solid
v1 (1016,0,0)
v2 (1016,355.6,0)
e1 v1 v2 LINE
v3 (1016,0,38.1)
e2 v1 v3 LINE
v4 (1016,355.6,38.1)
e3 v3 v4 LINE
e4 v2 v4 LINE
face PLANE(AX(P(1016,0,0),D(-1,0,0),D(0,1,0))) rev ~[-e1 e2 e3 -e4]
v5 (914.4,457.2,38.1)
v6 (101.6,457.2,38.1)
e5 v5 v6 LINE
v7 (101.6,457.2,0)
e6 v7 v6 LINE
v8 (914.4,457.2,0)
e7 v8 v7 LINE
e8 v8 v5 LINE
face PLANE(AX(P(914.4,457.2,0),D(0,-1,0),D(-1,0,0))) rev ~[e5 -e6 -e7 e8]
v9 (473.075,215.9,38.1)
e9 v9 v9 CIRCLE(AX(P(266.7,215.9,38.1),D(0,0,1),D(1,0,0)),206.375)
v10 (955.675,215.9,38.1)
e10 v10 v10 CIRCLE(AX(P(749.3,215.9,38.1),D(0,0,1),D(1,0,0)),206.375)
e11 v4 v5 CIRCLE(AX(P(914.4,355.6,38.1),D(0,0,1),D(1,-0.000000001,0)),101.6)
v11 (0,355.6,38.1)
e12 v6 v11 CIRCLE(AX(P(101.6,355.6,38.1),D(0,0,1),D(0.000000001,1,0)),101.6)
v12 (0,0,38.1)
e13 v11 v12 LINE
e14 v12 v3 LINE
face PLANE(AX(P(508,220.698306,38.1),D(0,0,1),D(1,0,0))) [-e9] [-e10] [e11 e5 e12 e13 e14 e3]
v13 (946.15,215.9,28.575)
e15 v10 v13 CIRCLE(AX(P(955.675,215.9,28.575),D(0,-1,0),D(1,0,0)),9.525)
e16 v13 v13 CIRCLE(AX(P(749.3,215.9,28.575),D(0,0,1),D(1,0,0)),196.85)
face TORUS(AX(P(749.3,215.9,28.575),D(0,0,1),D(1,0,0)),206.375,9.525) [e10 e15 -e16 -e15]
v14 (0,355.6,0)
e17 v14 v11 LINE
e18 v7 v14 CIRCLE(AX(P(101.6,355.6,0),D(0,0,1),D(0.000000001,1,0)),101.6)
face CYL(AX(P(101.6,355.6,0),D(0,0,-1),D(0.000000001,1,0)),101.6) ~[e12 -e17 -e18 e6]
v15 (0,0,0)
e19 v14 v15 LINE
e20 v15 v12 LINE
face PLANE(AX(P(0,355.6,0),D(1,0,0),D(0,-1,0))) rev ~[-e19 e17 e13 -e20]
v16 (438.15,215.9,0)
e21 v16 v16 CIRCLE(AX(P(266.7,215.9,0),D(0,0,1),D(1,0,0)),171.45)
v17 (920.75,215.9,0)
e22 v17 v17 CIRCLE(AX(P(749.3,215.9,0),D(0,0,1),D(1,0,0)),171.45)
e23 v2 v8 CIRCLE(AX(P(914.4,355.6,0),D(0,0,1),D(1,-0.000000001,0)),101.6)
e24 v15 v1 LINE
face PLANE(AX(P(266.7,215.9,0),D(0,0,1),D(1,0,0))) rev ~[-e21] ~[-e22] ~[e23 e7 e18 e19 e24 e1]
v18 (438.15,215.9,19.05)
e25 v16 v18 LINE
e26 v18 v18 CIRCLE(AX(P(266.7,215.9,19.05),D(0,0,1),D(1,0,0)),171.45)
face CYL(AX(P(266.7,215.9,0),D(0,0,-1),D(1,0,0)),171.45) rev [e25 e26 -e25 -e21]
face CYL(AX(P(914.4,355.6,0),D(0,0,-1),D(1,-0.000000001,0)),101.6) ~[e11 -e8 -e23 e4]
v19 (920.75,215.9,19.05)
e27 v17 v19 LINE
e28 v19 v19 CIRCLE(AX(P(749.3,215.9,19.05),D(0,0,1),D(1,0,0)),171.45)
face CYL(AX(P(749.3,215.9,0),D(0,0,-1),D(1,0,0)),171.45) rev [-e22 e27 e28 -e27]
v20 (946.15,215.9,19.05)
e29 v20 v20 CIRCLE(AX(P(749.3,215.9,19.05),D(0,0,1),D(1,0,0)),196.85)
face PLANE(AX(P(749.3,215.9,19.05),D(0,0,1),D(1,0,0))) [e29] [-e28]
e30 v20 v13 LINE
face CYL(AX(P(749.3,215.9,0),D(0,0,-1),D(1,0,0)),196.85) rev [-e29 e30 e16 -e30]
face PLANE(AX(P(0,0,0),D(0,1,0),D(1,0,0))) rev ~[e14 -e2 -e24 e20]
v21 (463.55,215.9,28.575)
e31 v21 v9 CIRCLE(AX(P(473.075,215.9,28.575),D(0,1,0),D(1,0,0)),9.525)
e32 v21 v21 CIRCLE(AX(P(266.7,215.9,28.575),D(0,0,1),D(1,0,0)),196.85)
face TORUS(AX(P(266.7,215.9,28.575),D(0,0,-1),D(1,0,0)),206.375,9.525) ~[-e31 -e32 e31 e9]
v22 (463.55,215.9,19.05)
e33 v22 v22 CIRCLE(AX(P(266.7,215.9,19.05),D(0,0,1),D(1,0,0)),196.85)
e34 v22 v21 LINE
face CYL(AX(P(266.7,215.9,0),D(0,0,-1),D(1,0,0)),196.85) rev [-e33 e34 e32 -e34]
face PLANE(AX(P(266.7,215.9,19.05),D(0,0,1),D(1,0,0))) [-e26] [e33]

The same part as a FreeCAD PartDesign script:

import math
import FreeCAD as App
import Part
import Sketcher

V = App.Vector
Q = App.Units.Quantity


def edges_at(feature, points):
    """Names of the edges that pass closest to the given points."""
    edges = feature.Shape.Edges
    near = lambda p: min(range(len(edges)), key=lambda i: edges[i].distToShape(Part.Vertex(*p))[0])
    return sorted({f"Edge{near(p) + 1}" for p in points})

doc = App.newDocument("Part")
body = doc.addObject("PartDesign::Body", "Body")

sketch1 = body.newObject("Sketcher::SketchObject", "Sketch")
sketch1.AttachmentSupport = (doc.getObject("XY_Plane"), [""])
sketch1.MapMode = "FlatFace"
sketch1.addGeometry(Part.LineSegment(V(0, 356, 0), V(0, 0, 0)), False)
sketch1.addGeometry(Part.LineSegment(V(0, 0, 0), V(1016, 0, 0)), False)
sketch1.addGeometry(Part.LineSegment(V(1016, 0, 0), V(1016, 356, 0)), False)
sketch1.addGeometry(Part.ArcOfCircle(Part.Circle(V(914, 356, 0), V(0, 0, 1), 102), math.radians(0), math.radians(90)), False)
sketch1.addGeometry(Part.LineSegment(V(914, 457, 0), V(102, 457, 0)), False)
sketch1.addGeometry(Part.ArcOfCircle(Part.Circle(V(102, 356, 0), V(0, 0, 1), 102), math.radians(90), math.radians(180)), False)
sketch1.addGeometry(Part.Circle(V(267, 216, 0), V(0, 0, 1), 197), False)
sketch1.addGeometry(Part.Circle(V(749, 216, 0), V(0, 0, 1), 197), False)
sketch1.addConstraint(Sketcher.Constraint("Coincident", 0, 2, 1, 1))
sketch1.addConstraint(Sketcher.Constraint("Coincident", 1, 2, 2, 1))
sketch1.addConstraint(Sketcher.Constraint("Tangent", 2, 2, 3, 1))
sketch1.addConstraint(Sketcher.Constraint("Tangent", 3, 2, 4, 1))
sketch1.addConstraint(Sketcher.Constraint("Tangent", 4, 2, 5, 1))
sketch1.addConstraint(Sketcher.Constraint("Tangent", 5, 2, 0, 1))
sketch1.addConstraint(Sketcher.Constraint("Vertical", 0))
sketch1.addConstraint(Sketcher.Constraint("Horizontal", 1))
sketch1.addConstraint(Sketcher.Constraint("Vertical", 2))
sketch1.addConstraint(Sketcher.Constraint("Horizontal", 4))
sketch1.addConstraint(Sketcher.Constraint("Coincident", 0, 2, -1, 1))
sketch1.addConstraint(Sketcher.Constraint("Equal", 3, 5))
sketch1.addConstraint(Sketcher.Constraint("Equal", 6, 7))
sketch1.addConstraint(Sketcher.Constraint("Horizontal", 6, 3, 7, 3))
sketch1.addConstraint(Sketcher.Constraint("Radius", 3, Q("4 in")))
sketch1.addConstraint(Sketcher.Constraint("Diameter", 6, Q("15.5 in")))
sketch1.addConstraint(Sketcher.Constraint("DistanceX", 1, 1, 1, 2, Q("40 in")))
sketch1.addConstraint(Sketcher.Constraint("DistanceY", 0, 2, 0, 1, Q("14 in")))
sketch1.addConstraint(Sketcher.Constraint("DistanceX", 6, 3, 7, 3, Q("19 in")))
sketch1.addConstraint(Sketcher.Constraint("DistanceX", -1, 1, 6, 3, Q("10.5 in")))
sketch1.addConstraint(Sketcher.Constraint("DistanceY", -1, 1, 6, 3, Q("8.5 in")))
pad1 = body.newObject("PartDesign::Pad", "Pad")
pad1.Profile = sketch1
pad1.Length = Q("1.5 in")

sketch2 = body.newObject("Sketcher::SketchObject", "Sketch001")
sketch2.AttachmentSupport = (doc.getObject("XY_Plane"), [""])
sketch2.MapMode = "FlatFace"
sketch2.addGeometry(Part.Circle(V(267, 216, 0), V(0, 0, 1), 197), False)
sketch2.addGeometry(Part.Circle(V(267, 216, 0), V(0, 0, 1), 171), False)
sketch2.addGeometry(Part.Circle(V(749, 216, 0), V(0, 0, 1), 197), False)
sketch2.addGeometry(Part.Circle(V(749, 216, 0), V(0, 0, 1), 171), False)
sketch2.addConstraint(Sketcher.Constraint("Coincident", 1, 3, 0, 3))
sketch2.addConstraint(Sketcher.Constraint("Coincident", 3, 3, 2, 3))
sketch2.addConstraint(Sketcher.Constraint("Equal", 0, 2))
sketch2.addConstraint(Sketcher.Constraint("Equal", 1, 3))
sketch2.addConstraint(Sketcher.Constraint("Horizontal", 1, 3, 2, 3))
sketch2.addConstraint(Sketcher.Constraint("Diameter", 0, Q("15.5 in")))
sketch2.addConstraint(Sketcher.Constraint("Diameter", 1, Q("13.5 in")))
sketch2.addConstraint(Sketcher.Constraint("DistanceX", 0, 3, 2, 3, Q("19 in")))
sketch2.addConstraint(Sketcher.Constraint("DistanceX", -1, 1, 0, 3, Q("10.5 in")))
sketch2.addConstraint(Sketcher.Constraint("DistanceY", -1, 1, 0, 3, Q("8.5 in")))
pad2 = body.newObject("PartDesign::Pad", "Pad001")
pad2.Profile = sketch2
pad2.Length = Q("0.75 in")
doc.recompute()

fillet = body.newObject("PartDesign::Fillet", "Fillet")
fillet.Base = (pad2, edges_at(pad2, [(69.85, 215.9, 38.1), (552.45, 215.9, 38.1)]))
fillet.Radius = Q("0.375 in")

doc.recompute()
